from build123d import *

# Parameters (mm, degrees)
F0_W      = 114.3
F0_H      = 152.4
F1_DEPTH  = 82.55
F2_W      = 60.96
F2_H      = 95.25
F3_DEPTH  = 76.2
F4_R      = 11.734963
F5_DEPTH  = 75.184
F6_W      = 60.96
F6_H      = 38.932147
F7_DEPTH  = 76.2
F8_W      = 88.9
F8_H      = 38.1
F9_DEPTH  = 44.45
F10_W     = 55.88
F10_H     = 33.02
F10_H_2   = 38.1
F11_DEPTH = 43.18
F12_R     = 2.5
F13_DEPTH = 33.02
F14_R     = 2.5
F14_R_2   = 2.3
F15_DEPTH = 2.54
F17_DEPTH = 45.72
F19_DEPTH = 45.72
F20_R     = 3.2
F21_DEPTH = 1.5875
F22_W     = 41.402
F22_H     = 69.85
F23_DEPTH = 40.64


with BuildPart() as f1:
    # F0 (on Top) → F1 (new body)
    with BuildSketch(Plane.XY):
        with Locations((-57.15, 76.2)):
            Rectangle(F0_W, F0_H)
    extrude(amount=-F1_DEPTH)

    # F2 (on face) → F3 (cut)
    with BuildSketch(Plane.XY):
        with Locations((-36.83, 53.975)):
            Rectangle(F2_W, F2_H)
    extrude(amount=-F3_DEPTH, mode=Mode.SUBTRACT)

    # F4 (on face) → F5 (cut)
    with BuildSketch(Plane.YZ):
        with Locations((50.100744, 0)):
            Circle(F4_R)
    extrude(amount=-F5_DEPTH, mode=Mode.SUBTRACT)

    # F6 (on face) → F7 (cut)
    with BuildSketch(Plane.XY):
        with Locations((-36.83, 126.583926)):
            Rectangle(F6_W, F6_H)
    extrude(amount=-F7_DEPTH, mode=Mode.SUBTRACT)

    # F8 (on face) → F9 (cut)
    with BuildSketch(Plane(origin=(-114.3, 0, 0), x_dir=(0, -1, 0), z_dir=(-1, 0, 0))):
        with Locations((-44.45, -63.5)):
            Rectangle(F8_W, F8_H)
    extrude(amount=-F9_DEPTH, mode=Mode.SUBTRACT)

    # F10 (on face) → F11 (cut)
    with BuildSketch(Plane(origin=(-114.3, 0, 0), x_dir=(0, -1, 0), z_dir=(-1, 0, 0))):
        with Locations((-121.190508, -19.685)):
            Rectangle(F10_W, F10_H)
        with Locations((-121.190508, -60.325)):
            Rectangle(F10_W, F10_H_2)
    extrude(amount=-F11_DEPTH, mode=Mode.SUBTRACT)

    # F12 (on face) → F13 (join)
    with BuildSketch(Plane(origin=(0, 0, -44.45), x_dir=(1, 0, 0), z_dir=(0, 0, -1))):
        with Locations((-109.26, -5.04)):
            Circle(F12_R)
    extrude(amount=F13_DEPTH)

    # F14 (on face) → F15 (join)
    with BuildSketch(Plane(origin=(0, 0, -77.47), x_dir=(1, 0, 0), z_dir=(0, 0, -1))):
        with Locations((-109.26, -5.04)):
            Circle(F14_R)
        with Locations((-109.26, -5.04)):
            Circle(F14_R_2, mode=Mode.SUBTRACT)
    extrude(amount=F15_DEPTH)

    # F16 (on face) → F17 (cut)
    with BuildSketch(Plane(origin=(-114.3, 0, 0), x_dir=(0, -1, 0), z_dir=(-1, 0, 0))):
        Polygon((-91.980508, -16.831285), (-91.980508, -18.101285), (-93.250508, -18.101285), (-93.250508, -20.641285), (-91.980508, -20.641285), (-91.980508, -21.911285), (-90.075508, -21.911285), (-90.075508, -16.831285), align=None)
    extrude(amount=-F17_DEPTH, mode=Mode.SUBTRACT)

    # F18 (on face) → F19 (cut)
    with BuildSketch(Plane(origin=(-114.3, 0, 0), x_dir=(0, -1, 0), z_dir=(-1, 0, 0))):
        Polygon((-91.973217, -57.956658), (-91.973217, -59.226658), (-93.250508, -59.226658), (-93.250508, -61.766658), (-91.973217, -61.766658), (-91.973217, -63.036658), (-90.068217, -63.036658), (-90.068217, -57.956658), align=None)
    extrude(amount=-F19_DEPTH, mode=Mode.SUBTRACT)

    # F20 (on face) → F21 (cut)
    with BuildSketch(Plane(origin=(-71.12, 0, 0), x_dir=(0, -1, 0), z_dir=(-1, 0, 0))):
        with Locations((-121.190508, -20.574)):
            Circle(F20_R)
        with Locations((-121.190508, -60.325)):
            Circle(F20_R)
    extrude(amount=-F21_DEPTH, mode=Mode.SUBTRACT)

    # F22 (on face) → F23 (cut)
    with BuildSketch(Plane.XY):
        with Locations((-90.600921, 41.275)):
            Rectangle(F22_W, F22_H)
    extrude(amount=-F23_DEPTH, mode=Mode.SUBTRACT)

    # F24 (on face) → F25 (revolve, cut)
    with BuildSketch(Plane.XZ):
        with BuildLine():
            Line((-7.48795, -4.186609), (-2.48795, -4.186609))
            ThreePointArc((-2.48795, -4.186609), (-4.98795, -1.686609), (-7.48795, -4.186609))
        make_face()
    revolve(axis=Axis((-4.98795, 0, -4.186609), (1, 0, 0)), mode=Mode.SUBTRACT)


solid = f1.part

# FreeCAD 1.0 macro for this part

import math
import FreeCAD as App
import Part
import Sketcher
Q = App.Units.Quantity


def add_polygon(sketch, points):
    """Adds a closed chain of lines whose ends are joined by coincident constraints."""
    first, n = sketch.GeometryCount, len(points)
    for a, b in zip(points, points[1:] + points[:1]):
        sketch.addGeometry(Part.LineSegment(App.Vector(*a, 0), App.Vector(*b, 0)), False)
    for i in range(n):
        sketch.addConstraint(Sketcher.Constraint("Coincident", first + i, 2, first + (i + 1) % n, 1))

doc = App.newDocument("Part")
params = doc.addObject("Spreadsheet::Sheet", "Params")
for row, (alias, value) in enumerate([
    ("sketch1_height", "6 in"),
    ("sketch1_width", "4.5 in"),
    ("pad1_length", "3.25 in"),
    ("sketch2_width", "2.4 in"),
    ("sketch2_height", "3.75 in"),
    ("pocket1_length", "3 in"),
    ("pocket2_length", "2.96 in"),
    ("sketch4_width", "2.4 in"),
    ("pocket3_length", "3 in"),
    ("sketch5_width", "3.5 in"),
    ("sketch5_height", "1.5 in"),
    ("pocket4_length", "1.75 in"),
    ("sketch6_width", "2.2 in"),
    ("sketch6_height", "1.3 in"),
    ("sketch6_height2", "1.5 in"),
    ("pocket5_length", "1.7 in"),
    ("pad2_length", "1.3 in"),
    ("pad3_length", "0.1 in"),
    ("sketch9_height", "0.1 in"),
    ("sketch9_height2", "0.2 in"),
    ("sketch9_width", "0.075 in"),
    ("pocket6_length", "1.8 in"),
    ("sketch10_height", "0.1 in"),
    ("sketch10_height2", "0.2 in"),
    ("sketch10_width", "0.075 in"),
    ("pocket7_length", "1.8 in"),
    ("pocket8_length", "0.0625 in"),
    ("sketch12_width", "1.63 in"),
    ("sketch12_height", "2.75 in"),
    ("pocket9_length", "1.6 in"),
    ("groove_angle", "360 deg"),
], start=1):
    params.set(f"A{row}", alias)
    params.set(f"B{row}", "=" + value)
    params.setAlias(f"B{row}", alias)

body = doc.addObject("PartDesign::Body", "Body")

# Sketch on XY plane
sketch1 = body.newObject("Sketcher::SketchObject", "Sketch")
sketch1.AttachmentSupport = (doc.getObject("XY_Plane"), [""])
sketch1.MapMode = "FlatFace"
add_polygon(sketch1, [(-114.3, 152.4), (-114.3, 0), (0, 0), (0, 152.4)])  # lines 0-3
sketch1.addConstraint([
    Sketcher.Constraint("Vertical", 0),
    Sketcher.Constraint("Horizontal", 1),
    Sketcher.Constraint("Vertical", 2),
    Sketcher.Constraint("Horizontal", 3),
    Sketcher.Constraint("Coincident", 1, 2, -1, 1),
    Sketcher.Constraint("DistanceY", 0, 2, 0, 1, Q("6 in")),
    Sketcher.Constraint("DistanceX", 1, 1, 1, 2, Q("4.5 in")),
])
sketch1.setExpression("Constraints[9]", "Params.sketch1_height")
sketch1.setExpression("Constraints[10]", "Params.sketch1_width")
pad1 = body.newObject("PartDesign::Pad", "Pad")
pad1.Profile = sketch1
pad1.setExpression("Length", "Params.pad1_length")
pad1.Reversed = True

# Sketch on XY plane
sketch2 = body.newObject("Sketcher::SketchObject", "Sketch001")
sketch2.AttachmentSupport = (doc.getObject("XY_Plane"), [""])
sketch2.MapMode = "FlatFace"
add_polygon(sketch2, [(-67.31, 101.6), (-67.31, 6.35), (-6.35, 6.35), (-6.35, 101.6)])  # lines 0-3
sketch2.addConstraint([
    Sketcher.Constraint("Vertical", 0),
    Sketcher.Constraint("Horizontal", 1),
    Sketcher.Constraint("Vertical", 2),
    Sketcher.Constraint("Horizontal", 3),
    Sketcher.Constraint("DistanceX", 1, 1, 1, 2, Q("2.4 in")),
    Sketcher.Constraint("DistanceY", -1, 1, 2, 2, Q("4 in")),
    Sketcher.Constraint("DistanceY", 0, 2, 0, 1, Q("3.75 in")),
    Sketcher.Constraint("DistanceX", 0, 2, -1, 1, Q("2.65 in")),
])
sketch2.setExpression("Constraints[8]", "Params.sketch2_width")
sketch2.setExpression("Constraints[10]", "Params.sketch2_height")
pocket1 = body.newObject("PartDesign::Pocket", "Pocket")
pocket1.Profile = sketch2
pocket1.setExpression("Length", "Params.pocket1_length")

# Sketch on YZ plane
sketch3 = body.newObject("Sketcher::SketchObject", "Sketch002")
sketch3.AttachmentSupport = (doc.getObject("YZ_Plane"), [""])
sketch3.MapMode = "FlatFace"
sketch3.addGeometry(Part.Circle(App.Vector(50.100744, 0, 0), App.Vector(0, 0, 1), 11.734963), False)
sketch3.addConstraint([
    Sketcher.Constraint("PointOnObject", 0, 3, -1),
    Sketcher.Constraint("Diameter", 0, 23.469926),
    Sketcher.Constraint("DistanceX", -1, 1, 0, 3, 50.100744),
])
pocket2 = body.newObject("PartDesign::Pocket", "Pocket001")
pocket2.Profile = sketch3
pocket2.setExpression("Length", "Params.pocket2_length")

# Sketch on XY plane
sketch4 = body.newObject("Sketcher::SketchObject", "Sketch003")
sketch4.AttachmentSupport = (doc.getObject("XY_Plane"), [""])
sketch4.MapMode = "FlatFace"
add_polygon(sketch4, [(-67.31, 146.05), (-67.31, 107.117852), (-6.35, 107.117852), (-6.35, 146.05)])  # lines 0-3
sketch4.addConstraint([
    Sketcher.Constraint("Vertical", 0),
    Sketcher.Constraint("Horizontal", 1),
    Sketcher.Constraint("Vertical", 2),
    Sketcher.Constraint("Horizontal", 3),
    Sketcher.Constraint("DistanceX", 1, 1, 1, 2, Q("2.4 in")),
    Sketcher.Constraint("DistanceX", 0, 2, -1, 1, Q("2.65 in")),
    Sketcher.Constraint("DistanceY", -1, 1, 2, 2, Q("5.75 in")),
    Sketcher.Constraint("DistanceY", 0, 2, 0, 1, 38.932147),
])
sketch4.setExpression("Constraints[8]", "Params.sketch4_width")
pocket3 = body.newObject("PartDesign::Pocket", "Pocket002")
pocket3.Profile = sketch4
pocket3.setExpression("Length", "Params.pocket3_length")

# Sketch on YZ plane
sketch5 = body.newObject("Sketcher::SketchObject", "Sketch004")
sketch5.AttachmentSupport = (doc.getObject("YZ_Plane"), [""])
sketch5.MapMode = "FlatFace"
sketch5.AttachmentOffset = App.Placement(App.Vector(0, 0, -4.5 * 25.4), App.Rotation())
add_polygon(sketch5, [(88.9, -44.45), (88.9, -82.55), (0, -82.55), (0, -44.45)])  # lines 0-3
sketch5.addConstraint([
    Sketcher.Constraint("Vertical", 0),
    Sketcher.Constraint("Horizontal", 1),
    Sketcher.Constraint("Vertical", 2),
    Sketcher.Constraint("Horizontal", 3),
    Sketcher.Constraint("PointOnObject", 1, 2, -2),
    Sketcher.Constraint("DistanceX", 1, 2, 1, 1, Q("3.5 in")),
    Sketcher.Constraint("DistanceY", 0, 2, 0, 1, Q("1.5 in")),
    Sketcher.Constraint("DistanceY", 0, 2, -1, 1, Q("3.25 in")),
])
sketch5.setExpression("Constraints[9]", "Params.sketch5_width")
sketch5.setExpression("Constraints[10]", "Params.sketch5_height")
pocket4 = body.newObject("PartDesign::Pocket", "Pocket003")
pocket4.Profile = sketch5
pocket4.setExpression("Length", "Params.pocket4_length")
pocket4.Reversed = True

# Sketch on YZ plane
sketch6 = body.newObject("Sketcher::SketchObject", "Sketch005")
sketch6.AttachmentSupport = (doc.getObject("YZ_Plane"), [""])
sketch6.MapMode = "FlatFace"
sketch6.AttachmentOffset = App.Placement(App.Vector(0, 0, -4.5 * 25.4), App.Rotation())
add_polygon(sketch6, [(149.130508, -3.175), (149.130508, -36.195), (93.250508, -36.195), (93.250508, -3.175)])  # lines 0-3
add_polygon(sketch6, [(149.130508, -41.275), (149.130508, -79.375), (93.250508, -79.375), (93.250508, -41.275)])  # lines 4-7
sketch6.addConstraint([
    Sketcher.Constraint("Vertical", 0),
    Sketcher.Constraint("Horizontal", 1),
    Sketcher.Constraint("Vertical", 2),
    Sketcher.Constraint("Horizontal", 3),
    Sketcher.Constraint("Vertical", 4),
    Sketcher.Constraint("Horizontal", 5),
    Sketcher.Constraint("Vertical", 6),
    Sketcher.Constraint("Horizontal", 7),
    Sketcher.Constraint("Vertical", 3, 2, 4, 2),
    Sketcher.Constraint("Vertical", 2, 2, 5, 2),
    Sketcher.Constraint("DistanceX", 1, 2, 1, 1, Q("2.2 in")),
    Sketcher.Constraint("DistanceY", 0, 2, 0, 1, Q("1.3 in")),
    Sketcher.Constraint("DistanceY", 4, 2, 4, 1, Q("1.5 in")),
    Sketcher.Constraint("DistanceY", 4, 2, 3, 2, Q("3 in")),
    Sketcher.Constraint("DistanceY", 0, 2, -1, 1, Q("1.425 in")),
    Sketcher.Constraint("DistanceX", -1, 1, 0, 2, 149.130508),
])
sketch6.setExpression("Constraints[18]", "Params.sketch6_width")
sketch6.setExpression("Constraints[19]", "Params.sketch6_height")
sketch6.setExpression("Constraints[20]", "Params.sketch6_height2")
pocket5 = body.newObject("PartDesign::Pocket", "Pocket004")
pocket5.Profile = sketch6
pocket5.setExpression("Length", "Params.pocket5_length")
pocket5.Reversed = True

# Sketch on XY plane
sketch7 = body.newObject("Sketcher::SketchObject", "Sketch006")
sketch7.AttachmentSupport = (doc.getObject("XY_Plane"), [""])
sketch7.MapMode = "FlatFace"
sketch7.AttachmentOffset = App.Placement(App.Vector(0, 0, -1.75 * 25.4), App.Rotation())
sketch7.addGeometry(Part.Circle(App.Vector(-109.26, 5.04, 0), App.Vector(0, 0, 1), 2.5), False)
sketch7.addConstraint([
    Sketcher.Constraint("Diameter", 0, 5.0),
    Sketcher.Constraint("DistanceX", 0, 3, -1, 1, 109.26),
    Sketcher.Constraint("DistanceY", -1, 1, 0, 3, 5.04),
])
pad2 = body.newObject("PartDesign::Pad", "Pad001")
pad2.Profile = sketch7
pad2.setExpression("Length", "Params.pad2_length")
pad2.Reversed = True

# Sketch on XY plane
sketch8 = body.newObject("Sketcher::SketchObject", "Sketch007")
sketch8.AttachmentSupport = (doc.getObject("XY_Plane"), [""])
sketch8.MapMode = "FlatFace"
sketch8.AttachmentOffset = App.Placement(App.Vector(0, 0, -3.05 * 25.4), App.Rotation())
sketch8.addGeometry([
    Part.Circle(App.Vector(-109.26, 5.04, 0), App.Vector(0, 0, 1), 2.5),
    Part.Circle(App.Vector(-109.26, 5.04, 0), App.Vector(0, 0, 1), 2.3),
], False)
sketch8.addConstraint([
    Sketcher.Constraint("Coincident", 1, 3, 0, 3),
    Sketcher.Constraint("Diameter", 0, 5.0),
    Sketcher.Constraint("Diameter", 1, 4.6),
    Sketcher.Constraint("DistanceX", 0, 3, -1, 1, 109.26),
    Sketcher.Constraint("DistanceY", -1, 1, 0, 3, 5.04),
])
pad3 = body.newObject("PartDesign::Pad", "Pad002")
pad3.Profile = sketch8
pad3.setExpression("Length", "Params.pad3_length")
pad3.Reversed = True

# Sketch on YZ plane
sketch9 = body.newObject("Sketcher::SketchObject", "Sketch008")
sketch9.AttachmentSupport = (doc.getObject("YZ_Plane"), [""])
sketch9.MapMode = "FlatFace"
sketch9.AttachmentOffset = App.Placement(App.Vector(0, 0, -4.5 * 25.4), App.Rotation())
add_polygon(sketch9, [(91.980508, -16.831285), (91.980508, -18.101285), (93.250508, -18.101285), (93.250508, -20.641285), (91.980508, -20.641285), (91.980508, -21.911285), (90.075508, -21.911285), (90.075508, -16.831285)])  # lines 0-7
sketch9.addConstraint([
    Sketcher.Constraint("Vertical", 0),
    Sketcher.Constraint("Horizontal", 1),
    Sketcher.Constraint("Vertical", 2),
    Sketcher.Constraint("Horizontal", 3),
    Sketcher.Constraint("Vertical", 4),
    Sketcher.Constraint("Horizontal", 5),
    Sketcher.Constraint("Vertical", 6),
    Sketcher.Constraint("Horizontal", 7),
    Sketcher.Constraint("Vertical", 0, 2, 3, 2),
    Sketcher.Constraint("Equal", 3, 0),
    Sketcher.Constraint("Equal", 0, 4),
    Sketcher.Constraint("DistanceY", 2, 2, 2, 1, Q("0.1 in")),
    Sketcher.Constraint("DistanceY", 6, 1, 6, 2, Q("0.2 in")),
    Sketcher.Constraint("DistanceX", 5, 2, 5, 1, Q("0.075 in")),
    Sketcher.Constraint("DistanceX", -1, 1, 0, 2, 91.980508),
    Sketcher.Constraint("DistanceY", 0, 2, -1, 1, 18.101285),
])
sketch9.setExpression("Constraints[19]", "Params.sketch9_height")
sketch9.setExpression("Constraints[20]", "Params.sketch9_height2")
sketch9.setExpression("Constraints[21]", "Params.sketch9_width")
pocket6 = body.newObject("PartDesign::Pocket", "Pocket005")
pocket6.Profile = sketch9
pocket6.setExpression("Length", "Params.pocket6_length")
pocket6.Reversed = True

# Sketch on YZ plane
sketch10 = body.newObject("Sketcher::SketchObject", "Sketch009")
sketch10.AttachmentSupport = (doc.getObject("YZ_Plane"), [""])
sketch10.MapMode = "FlatFace"
sketch10.AttachmentOffset = App.Placement(App.Vector(0, 0, -4.5 * 25.4), App.Rotation())
add_polygon(sketch10, [(91.973217, -57.956658), (91.973217, -59.226658), (93.250508, -59.226658), (93.250508, -61.766658), (91.973217, -61.766658), (91.973217, -63.036658), (90.068217, -63.036658), (90.068217, -57.956658)])  # lines 0-7
sketch10.addConstraint([
    Sketcher.Constraint("Vertical", 0),
    Sketcher.Constraint("Horizontal", 1),
    Sketcher.Constraint("Vertical", 2),
    Sketcher.Constraint("Horizontal", 3),
    Sketcher.Constraint("Vertical", 4),
    Sketcher.Constraint("Horizontal", 5),
    Sketcher.Constraint("Vertical", 6),
    Sketcher.Constraint("Horizontal", 7),
    Sketcher.Constraint("Vertical", 0, 2, 3, 2),
    Sketcher.Constraint("Equal", 0, 4),
    Sketcher.Constraint("DistanceY", 2, 2, 2, 1, Q("0.1 in")),
    Sketcher.Constraint("DistanceY", 6, 1, 6, 2, Q("0.2 in")),
    Sketcher.Constraint("DistanceX", 5, 2, 5, 1, Q("0.075 in")),
    Sketcher.Constraint("DistanceX", 1, 1, 1, 2, 1.277291),
    Sketcher.Constraint("DistanceY", 4, 2, -1, 1, 63.036658),
    Sketcher.Constraint("DistanceX", -1, 1, 0, 2, 91.973217),
])
sketch10.setExpression("Constraints[18]", "Params.sketch10_height")
sketch10.setExpression("Constraints[19]", "Params.sketch10_height2")
sketch10.setExpression("Constraints[20]", "Params.sketch10_width")
pocket7 = body.newObject("PartDesign::Pocket", "Pocket006")
pocket7.Profile = sketch10
pocket7.setExpression("Length", "Params.pocket7_length")
pocket7.Reversed = True

# Sketch on YZ plane
sketch11 = body.newObject("Sketcher::SketchObject", "Sketch010")
sketch11.AttachmentSupport = (doc.getObject("YZ_Plane"), [""])
sketch11.MapMode = "FlatFace"
sketch11.AttachmentOffset = App.Placement(App.Vector(0, 0, -2.8 * 25.4), App.Rotation())
sketch11.addGeometry([
    Part.Circle(App.Vector(121.190508, -20.574, 0), App.Vector(0, 0, 1), 3.2),
    Part.Circle(App.Vector(121.190508, -60.325, 0), App.Vector(0, 0, 1), 3.2),
], False)
sketch11.addConstraint([
    Sketcher.Constraint("Equal", 0, 1),
    Sketcher.Constraint("Vertical", 0, 3, 1, 3),
    Sketcher.Constraint("Diameter", 0, 6.4),
    Sketcher.Constraint("DistanceY", 0, 3, -1, 1, Q("0.81 in")),
    Sketcher.Constraint("DistanceY", 1, 3, -1, 1, Q("2.375 in")),
    Sketcher.Constraint("DistanceX", -1, 1, 0, 3, 121.190508),
])
pocket8 = body.newObject("PartDesign::Pocket", "Pocket007")
pocket8.Profile = sketch11
pocket8.setExpression("Length", "Params.pocket8_length")
pocket8.Reversed = True

# Sketch on XY plane
sketch12 = body.newObject("Sketcher::SketchObject", "Sketch011")
sketch12.AttachmentSupport = (doc.getObject("XY_Plane"), [""])
sketch12.MapMode = "FlatFace"
add_polygon(sketch12, [(-111.301921, 76.2), (-111.301921, 6.35), (-69.899921, 6.35), (-69.899921, 76.2)])  # lines 0-3
sketch12.addConstraint([
    Sketcher.Constraint("Vertical", 0),
    Sketcher.Constraint("Horizontal", 1),
    Sketcher.Constraint("Vertical", 2),
    Sketcher.Constraint("Horizontal", 3),
    Sketcher.Constraint("DistanceY", -1, 1, 2, 2, Q("3 in")),
    Sketcher.Constraint("DistanceX", 1, 1, 1, 2, Q("1.63 in")),
    Sketcher.Constraint("DistanceY", 0, 2, 0, 1, Q("2.75 in")),
    Sketcher.Constraint("DistanceX", 0, 2, -1, 1, 111.301921),
])
sketch12.setExpression("Constraints[9]", "Params.sketch12_width")
sketch12.setExpression("Constraints[10]", "Params.sketch12_height")
pocket9 = body.newObject("PartDesign::Pocket", "Pocket008")
pocket9.Profile = sketch12
pocket9.setExpression("Length", "Params.pocket9_length")

# Sketch on XZ plane
sketch13 = body.newObject("Sketcher::SketchObject", "Sketch012")
sketch13.AttachmentSupport = (doc.getObject("XZ_Plane"), [""])
sketch13.MapMode = "FlatFace"
sketch13.addGeometry([
    Part.LineSegment(App.Vector(-7.48795, -4.186609, 0), App.Vector(-2.48795, -4.186609, 0)),
    Part.ArcOfCircle(Part.Circle(App.Vector(-4.98795, -4.186609, 0), App.Vector(0, 0, 1), 2.5), math.radians(0), math.radians(180)),
], False)
sketch13.addGeometry(Part.LineSegment(App.Vector(-7.48795, -4.186609, 0), App.Vector(-2.48795, -4.186609, 0)), True)  # axis
sketch13.addConstraint([
    Sketcher.Constraint("Coincident", 0, 1, 1, 2),
    Sketcher.Constraint("Coincident", 1, 1, 0, 2),
    Sketcher.Constraint("Horizontal", 0),
    Sketcher.Constraint("Horizontal", 2),
    Sketcher.Constraint("Coincident", 2, 1, 0, 1),
    Sketcher.Constraint("Horizontal", 1, 3, 0, 1),
    Sketcher.Constraint("Equal", 0, 2),
    Sketcher.Constraint("Radius", 1, 2.5),
    Sketcher.Constraint("DistanceX", 1, 3, -1, 1, 4.98795),
    Sketcher.Constraint("DistanceY", 1, 3, -1, 1, 4.186609),
])
groove = body.newObject("PartDesign::Groove", "Groove")
groove.Profile = sketch13
groove.ReferenceAxis = (sketch13, ["Axis0"])
groove.setExpression("Angle", "Params.groove_angle")

doc.recompute()
